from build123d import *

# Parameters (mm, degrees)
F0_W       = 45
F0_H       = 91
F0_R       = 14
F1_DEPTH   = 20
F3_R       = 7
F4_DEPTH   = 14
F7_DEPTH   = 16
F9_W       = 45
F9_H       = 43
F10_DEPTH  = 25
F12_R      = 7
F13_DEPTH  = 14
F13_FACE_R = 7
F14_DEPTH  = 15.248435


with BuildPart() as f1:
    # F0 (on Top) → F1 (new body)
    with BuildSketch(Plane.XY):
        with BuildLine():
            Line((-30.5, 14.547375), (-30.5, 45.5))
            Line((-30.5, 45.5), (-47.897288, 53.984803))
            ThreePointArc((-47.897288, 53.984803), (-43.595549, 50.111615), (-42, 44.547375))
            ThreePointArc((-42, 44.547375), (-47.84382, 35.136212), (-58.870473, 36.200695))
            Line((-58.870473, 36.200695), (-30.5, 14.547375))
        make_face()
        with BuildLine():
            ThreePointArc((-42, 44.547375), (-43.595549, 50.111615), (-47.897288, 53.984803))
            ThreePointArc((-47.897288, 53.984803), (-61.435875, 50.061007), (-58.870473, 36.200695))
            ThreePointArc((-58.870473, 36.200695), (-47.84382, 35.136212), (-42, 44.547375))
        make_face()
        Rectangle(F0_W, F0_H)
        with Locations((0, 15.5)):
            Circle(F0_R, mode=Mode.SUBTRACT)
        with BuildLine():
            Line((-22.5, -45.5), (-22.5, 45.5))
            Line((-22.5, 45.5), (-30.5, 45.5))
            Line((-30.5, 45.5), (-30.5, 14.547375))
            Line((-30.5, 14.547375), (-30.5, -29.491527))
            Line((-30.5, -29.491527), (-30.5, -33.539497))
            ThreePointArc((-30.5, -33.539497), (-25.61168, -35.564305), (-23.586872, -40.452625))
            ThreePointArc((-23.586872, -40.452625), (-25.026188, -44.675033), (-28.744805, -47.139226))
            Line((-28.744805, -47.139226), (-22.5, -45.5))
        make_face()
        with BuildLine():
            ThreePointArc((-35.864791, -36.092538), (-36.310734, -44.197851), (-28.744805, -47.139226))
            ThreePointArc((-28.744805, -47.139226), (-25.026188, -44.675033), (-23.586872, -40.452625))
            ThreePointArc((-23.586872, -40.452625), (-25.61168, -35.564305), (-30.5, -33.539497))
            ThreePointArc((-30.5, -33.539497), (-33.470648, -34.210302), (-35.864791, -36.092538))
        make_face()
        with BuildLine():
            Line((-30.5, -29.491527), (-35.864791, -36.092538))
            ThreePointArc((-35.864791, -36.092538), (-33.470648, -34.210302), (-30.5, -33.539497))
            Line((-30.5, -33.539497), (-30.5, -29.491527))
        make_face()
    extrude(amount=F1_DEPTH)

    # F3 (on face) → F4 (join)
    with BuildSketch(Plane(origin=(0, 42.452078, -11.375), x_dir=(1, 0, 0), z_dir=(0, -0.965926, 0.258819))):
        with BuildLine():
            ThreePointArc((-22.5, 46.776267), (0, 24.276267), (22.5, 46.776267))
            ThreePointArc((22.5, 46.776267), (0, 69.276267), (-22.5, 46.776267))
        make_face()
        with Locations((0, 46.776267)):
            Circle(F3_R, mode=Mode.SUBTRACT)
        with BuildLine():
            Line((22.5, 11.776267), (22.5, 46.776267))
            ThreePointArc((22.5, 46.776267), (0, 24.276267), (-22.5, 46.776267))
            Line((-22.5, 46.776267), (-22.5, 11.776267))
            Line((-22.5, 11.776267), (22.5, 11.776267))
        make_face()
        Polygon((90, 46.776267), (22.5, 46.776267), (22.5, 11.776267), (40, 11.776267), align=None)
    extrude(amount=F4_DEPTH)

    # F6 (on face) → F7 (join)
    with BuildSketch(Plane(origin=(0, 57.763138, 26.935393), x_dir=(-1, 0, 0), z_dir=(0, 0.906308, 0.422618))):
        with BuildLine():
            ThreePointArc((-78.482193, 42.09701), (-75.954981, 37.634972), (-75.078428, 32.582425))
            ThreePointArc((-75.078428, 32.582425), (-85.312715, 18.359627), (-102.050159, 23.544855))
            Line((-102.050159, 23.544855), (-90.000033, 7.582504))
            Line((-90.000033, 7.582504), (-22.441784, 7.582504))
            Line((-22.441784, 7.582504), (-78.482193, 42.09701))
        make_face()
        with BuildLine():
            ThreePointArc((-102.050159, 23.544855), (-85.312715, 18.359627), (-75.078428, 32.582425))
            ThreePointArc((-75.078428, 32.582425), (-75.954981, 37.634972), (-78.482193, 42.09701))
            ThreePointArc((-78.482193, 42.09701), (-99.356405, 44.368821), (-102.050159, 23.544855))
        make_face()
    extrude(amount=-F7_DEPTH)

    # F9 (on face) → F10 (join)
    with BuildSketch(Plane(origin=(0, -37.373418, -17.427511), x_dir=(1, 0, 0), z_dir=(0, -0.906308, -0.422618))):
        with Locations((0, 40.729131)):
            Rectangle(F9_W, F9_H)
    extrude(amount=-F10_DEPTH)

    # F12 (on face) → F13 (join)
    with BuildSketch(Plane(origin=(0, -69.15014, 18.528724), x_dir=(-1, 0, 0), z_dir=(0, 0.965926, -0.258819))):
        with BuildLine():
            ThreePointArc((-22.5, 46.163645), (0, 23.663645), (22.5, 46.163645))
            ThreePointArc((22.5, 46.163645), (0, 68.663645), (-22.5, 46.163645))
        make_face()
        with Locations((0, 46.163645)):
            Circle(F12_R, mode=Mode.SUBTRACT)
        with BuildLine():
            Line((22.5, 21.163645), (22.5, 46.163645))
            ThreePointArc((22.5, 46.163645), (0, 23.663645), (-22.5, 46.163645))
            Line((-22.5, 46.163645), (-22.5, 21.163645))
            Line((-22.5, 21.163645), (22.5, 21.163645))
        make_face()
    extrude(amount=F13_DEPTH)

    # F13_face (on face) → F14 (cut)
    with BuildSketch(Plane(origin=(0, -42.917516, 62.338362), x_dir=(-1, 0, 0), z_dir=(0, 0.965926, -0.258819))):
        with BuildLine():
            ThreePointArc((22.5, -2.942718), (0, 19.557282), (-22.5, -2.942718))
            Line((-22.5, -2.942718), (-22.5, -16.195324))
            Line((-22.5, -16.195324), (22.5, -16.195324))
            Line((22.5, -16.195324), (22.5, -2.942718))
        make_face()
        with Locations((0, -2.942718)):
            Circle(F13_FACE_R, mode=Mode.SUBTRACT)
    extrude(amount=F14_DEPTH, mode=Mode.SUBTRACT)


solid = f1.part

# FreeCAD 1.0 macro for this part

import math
import FreeCAD as App
import Part
import Sketcher
from FreeCAD import Vector
Q = App.Units.Quantity

doc = App.newDocument("Part")
body = doc.addObject("PartDesign::Body", "Body")

# Sketch on XY plane
sketch1 = body.newObject("Sketcher::SketchObject", "Sketch")
sketch1.AttachmentSupport = (doc.getObject("XY_Plane"), [""])
sketch1.MapMode = "FlatFace"
sketch1.addGeometry(Part.LineSegment(Vector(-30, 46, 0), Vector(-48, 54, 0)), False)
sketch1.addGeometry(Part.ArcOfCircle(Part.Circle(Vector(-52, 45, 0), Vector(0, 0, 1), 10), math.radians(64), math.radians(233)), False)
sketch1.addGeometry(Part.LineSegment(Vector(-59, 36, 0), Vector(-30, 15, 0)), False)
sketch1.addGeometry(Part.LineSegment(Vector(-30, 15, 0), Vector(-30, -29, 0)), False)
sketch1.addGeometry(Part.LineSegment(Vector(-30, -29, 0), Vector(-36, -36, 0)), False)
sketch1.addGeometry(Part.ArcOfCircle(Part.Circle(Vector(-31, -40, 0), Vector(0, 0, 1), 7), math.radians(141), math.radians(285)), False)
sketch1.addGeometry(Part.LineSegment(Vector(-29, -47, 0), Vector(-22, -46, 0)), False)
sketch1.addGeometry(Part.LineSegment(Vector(-22, -46, 0), Vector(22, -46, 0)), False)
sketch1.addGeometry(Part.LineSegment(Vector(22, -46, 0), Vector(22, 46, 0)), False)
sketch1.addGeometry(Part.LineSegment(Vector(22, 46, 0), Vector(-30, 46, 0)), False)
sketch1.addGeometry(Part.Circle(Vector(0, 16, 0), Vector(0, 0, 1), 14), False)
sketch1.addConstraint(Sketcher.Constraint("Tangent", 0, 2, 1, 1))
sketch1.addConstraint(Sketcher.Constraint("Tangent", 1, 2, 2, 1))
sketch1.addConstraint(Sketcher.Constraint("Coincident", 2, 2, 3, 1))
sketch1.addConstraint(Sketcher.Constraint("Coincident", 3, 2, 4, 1))
sketch1.addConstraint(Sketcher.Constraint("Tangent", 4, 2, 5, 1))
sketch1.addConstraint(Sketcher.Constraint("Tangent", 5, 2, 6, 1))
sketch1.addConstraint(Sketcher.Constraint("Coincident", 6, 2, 7, 1))
sketch1.addConstraint(Sketcher.Constraint("Coincident", 7, 2, 8, 1))
sketch1.addConstraint(Sketcher.Constraint("Coincident", 8, 2, 9, 1))
sketch1.addConstraint(Sketcher.Constraint("Coincident", 9, 2, 0, 1))
sketch1.addConstraint(Sketcher.Constraint("Vertical", 3))
sketch1.addConstraint(Sketcher.Constraint("Horizontal", 7))
sketch1.addConstraint(Sketcher.Constraint("Vertical", 8))
sketch1.addConstraint(Sketcher.Constraint("Horizontal", 9))
sketch1.addConstraint(Sketcher.Constraint("Symmetric", 6, 2, 8, 2, -1, 1))
sketch1.addConstraint(Sketcher.Constraint("PointOnObject", 10, 3, -2))
sketch1.addConstraint(Sketcher.Constraint("Vertical", 5, 3, 2, 2))
sketch1.addConstraint(Sketcher.Constraint("Vertical", 3, 2, 9, 2))
sketch1.addConstraint(Sketcher.Constraint("Diameter", 10, Q("28 mm")))
sketch1.addConstraint(Sketcher.Constraint("Radius", 1, Q("10.5 mm")))
sketch1.addConstraint(Sketcher.Constraint("DistanceX", 7, 1, 7, 2, Q("45 mm")))
sketch1.addConstraint(Sketcher.Constraint("DistanceX", 9, 2, 9, 1, Q("53 mm")))
sketch1.addConstraint(Sketcher.Constraint("DistanceY", 8, 1, 8, 2, Q("91 mm")))
sketch1.addConstraint(Sketcher.Constraint("DistanceX", 1, 3, 5, 3, Q("21.999999 mm")))
sketch1.addConstraint(Sketcher.Constraint("DistanceY", 5, 3, 1, 3, Q("85.000001 mm")))
sketch1.addConstraint(Sketcher.Constraint("DistanceY", 2, 2, 1, 3, Q("30 mm")))
sketch1.addConstraint(Sketcher.Constraint("DistanceY", 10, 3, 8, 2, Q("30 mm")))
sketch1.addConstraint(Sketcher.Constraint("Radius", 5, Q("6.913128 mm")))
sketch1.addConstraint(Sketcher.Constraint("DistanceY", 5, 3, 3, 2, Q("10.961098 mm")))
sketch1.addConstraint(Sketcher.Constraint("DistanceY", 5, 2, 5, 3, Q("6.686601 mm")))
pad1 = body.newObject("PartDesign::Pad", "Pad")
pad1.Profile = sketch1
pad1.Length = 20

# Sketch on an angled plane
sketch2 = body.newObject("Sketcher::SketchObject", "Sketch001")
sketch2.Placement = App.Placement(Vector(0, 42.452078, -11.375), App.Rotation(Vector(1, 0, 0), Vector(0, 0.25881896, 0.965925849), Vector(0, -0.965925849, 0.25881896), "ZXY"))
sketch2.addGeometry(Part.ArcOfCircle(Part.Circle(Vector(0, 47, 0), Vector(0, 0, 1), 22), math.radians(0), math.radians(180)), False)
sketch2.addGeometry(Part.LineSegment(Vector(-22, 47, 0), Vector(-22, 12, 0)), False)
sketch2.addGeometry(Part.LineSegment(Vector(-22, 12, 0), Vector(40, 12, 0)), False)
sketch2.addGeometry(Part.LineSegment(Vector(40, 12, 0), Vector(90, 47, 0)), False)
sketch2.addGeometry(Part.LineSegment(Vector(90, 47, 0), Vector(22, 47, 0)), False)
sketch2.addGeometry(Part.Circle(Vector(0, 47, 0), Vector(0, 0, 1), 7), False)
sketch2.addConstraint(Sketcher.Constraint("Tangent", 0, 2, 1, 1))
sketch2.addConstraint(Sketcher.Constraint("Coincident", 1, 2, 2, 1))
sketch2.addConstraint(Sketcher.Constraint("Coincident", 2, 2, 3, 1))
sketch2.addConstraint(Sketcher.Constraint("Coincident", 3, 2, 4, 1))
sketch2.addConstraint(Sketcher.Constraint("Coincident", 4, 2, 0, 1))
sketch2.addConstraint(Sketcher.Constraint("Vertical", 1))
sketch2.addConstraint(Sketcher.Constraint("Horizontal", 2))
sketch2.addConstraint(Sketcher.Constraint("Horizontal", 4))
sketch2.addConstraint(Sketcher.Constraint("Coincident", 5, 3, 0, 3))
sketch2.addConstraint(Sketcher.Constraint("Symmetric", 0, 2, 4, 2, -2))
sketch2.addConstraint(Sketcher.Constraint("Diameter", 5, Q("14 mm")))
sketch2.addConstraint(Sketcher.Constraint("Radius", 0, Q("22.5 mm")))
sketch2.addConstraint(Sketcher.Constraint("DistanceY", 1, 2, 1, 1, Q("35 mm")))
sketch2.addConstraint(Sketcher.Constraint("DistanceX", 2, 1, 2, 2, Q("62.5 mm")))
sketch2.addConstraint(Sketcher.Constraint("DistanceX", 4, 2, 4, 1, Q("67.5 mm")))
sketch2.addConstraint(Sketcher.Constraint("DistanceY", -1, 1, 0, 3, Q("46.776267 mm")))
pad2 = body.newObject("PartDesign::Pad", "Pad001")
pad2.Profile = sketch2
pad2.Length = 14

# Sketch on an angled plane
sketch3 = body.newObject("Sketcher::SketchObject", "Sketch002")
sketch3.Placement = App.Placement(Vector(0, 57.763138, 26.935393), App.Rotation(Vector(-1, 0, 0), Vector(0, -0.422617965, 0.906307925), Vector(0, 0.906307925, 0.422617965), "ZXY"))
sketch3.addGeometry(Part.LineSegment(Vector(-102, 24, 0), Vector(-90, 8, 0)), False)
sketch3.addGeometry(Part.LineSegment(Vector(-90, 8, 0), Vector(-22, 8, 0)), False)
sketch3.addGeometry(Part.LineSegment(Vector(-22, 8, 0), Vector(-78, 42, 0)), False)
sketch3.addGeometry(Part.ArcOfCircle(Part.Circle(Vector(-90, 33, 0), Vector(0, 0, 1), 15), math.radians(39), math.radians(217)), False)
sketch3.addConstraint(Sketcher.Constraint("Coincident", 0, 2, 1, 1))
sketch3.addConstraint(Sketcher.Constraint("Coincident", 1, 2, 2, 1))
sketch3.addConstraint(Sketcher.Constraint("Coincident", 2, 2, 3, 1))
sketch3.addConstraint(Sketcher.Constraint("Tangent", 3, 2, 0, 1))
sketch3.addConstraint(Sketcher.Constraint("Horizontal", 1))
sketch3.addConstraint(Sketcher.Constraint("Radius", 3, Q("15 mm")))
sketch3.addConstraint(Sketcher.Constraint("DistanceX", 1, 1, 1, 2, Q("67.558249 mm")))
sketch3.addConstraint(Sketcher.Constraint("Distance", 2, Q("65.816248 mm")))
sketch3.addConstraint(Sketcher.Constraint("DistanceY", -1, 1, 2, 2, Q("42.09701 mm")))
sketch3.addConstraint(Sketcher.Constraint("DistanceX", 3, 2, -1, 1, Q("102.050159 mm")))
sketch3.addConstraint(Sketcher.Constraint("DistanceY", 0, 2, 3, 3, Q("24.99992 mm")))
sketch3.addConstraint(Sketcher.Constraint("DistanceX", 0, 2, 2, 2, Q("11.51784 mm")))
pad3 = body.newObject("PartDesign::Pad", "Pad002")
pad3.Profile = sketch3
pad3.Length = 16
pad3.Reversed = True

# Sketch on an angled plane
sketch4 = body.newObject("Sketcher::SketchObject", "Sketch003")
sketch4.Placement = App.Placement(Vector(0, -37.373418, -17.427511), App.Rotation(Vector(1, 0, 0), Vector(0, -0.422617965, 0.906307925), Vector(0, -0.906307925, -0.422617965), "ZXY"))
sketch4.addGeometry(Part.LineSegment(Vector(-22, 62, 0), Vector(-22, 19, 0)), False)
sketch4.addGeometry(Part.LineSegment(Vector(-22, 19, 0), Vector(22, 19, 0)), False)
sketch4.addGeometry(Part.LineSegment(Vector(22, 19, 0), Vector(22, 62, 0)), False)
sketch4.addGeometry(Part.LineSegment(Vector(22, 62, 0), Vector(-22, 62, 0)), False)
sketch4.addConstraint(Sketcher.Constraint("Coincident", 0, 2, 1, 1))
sketch4.addConstraint(Sketcher.Constraint("Coincident", 1, 2, 2, 1))
sketch4.addConstraint(Sketcher.Constraint("Coincident", 2, 2, 3, 1))
sketch4.addConstraint(Sketcher.Constraint("Coincident", 3, 2, 0, 1))
sketch4.addConstraint(Sketcher.Constraint("Vertical", 0))
sketch4.addConstraint(Sketcher.Constraint("Horizontal", 1))
sketch4.addConstraint(Sketcher.Constraint("Vertical", 2))
sketch4.addConstraint(Sketcher.Constraint("Horizontal", 3))
sketch4.addConstraint(Sketcher.Constraint("DistanceX", 1, 1, 1, 2, Q("45 mm")))
sketch4.addConstraint(Sketcher.Constraint("DistanceY", 0, 2, 0, 1, Q("43 mm")))
sketch4.addConstraint(Sketcher.Constraint("DistanceX", 0, 2, -1, 1, Q("22.5 mm")))
sketch4.addConstraint(Sketcher.Constraint("DistanceY", -1, 1, 0, 2, Q("19.229131 mm")))
pad4 = body.newObject("PartDesign::Pad", "Pad003")
pad4.Profile = sketch4
pad4.Length = 25
pad4.Reversed = True

# Sketch on an angled plane
sketch5 = body.newObject("Sketcher::SketchObject", "Sketch004")
sketch5.Placement = App.Placement(Vector(0, -69.15014, 18.528724), App.Rotation(Vector(-1, 0, 0), Vector(0, 0.25881896, 0.965925849), Vector(0, 0.965925849, -0.25881896), "ZXY"))
sketch5.addGeometry(Part.ArcOfCircle(Part.Circle(Vector(0, 46, 0), Vector(0, 0, 1), 22), math.radians(0), math.radians(180)), False)
sketch5.addGeometry(Part.LineSegment(Vector(-22, 46, 0), Vector(-22, 21, 0)), False)
sketch5.addGeometry(Part.LineSegment(Vector(-22, 21, 0), Vector(22, 21, 0)), False)
sketch5.addGeometry(Part.LineSegment(Vector(22, 21, 0), Vector(22, 46, 0)), False)
sketch5.addGeometry(Part.Circle(Vector(0, 46, 0), Vector(0, 0, 1), 7), False)
sketch5.addConstraint(Sketcher.Constraint("Tangent", 0, 2, 1, 1))
sketch5.addConstraint(Sketcher.Constraint("Coincident", 1, 2, 2, 1))
sketch5.addConstraint(Sketcher.Constraint("Coincident", 2, 2, 3, 1))
sketch5.addConstraint(Sketcher.Constraint("Tangent", 3, 2, 0, 1))
sketch5.addConstraint(Sketcher.Constraint("Vertical", 1))
sketch5.addConstraint(Sketcher.Constraint("Horizontal", 2))
sketch5.addConstraint(Sketcher.Constraint("Vertical", 3))
sketch5.addConstraint(Sketcher.Constraint("Coincident", 4, 3, 0, 3))
sketch5.addConstraint(Sketcher.Constraint("PointOnObject", 0, 3, -2))
sketch5.addConstraint(Sketcher.Constraint("Diameter", 4, Q("14 mm")))
sketch5.addConstraint(Sketcher.Constraint("Radius", 0, Q("22.5 mm")))
sketch5.addConstraint(Sketcher.Constraint("DistanceY", 1, 2, 1, 1, Q("25 mm")))
sketch5.addConstraint(Sketcher.Constraint("DistanceY", -1, 1, 0, 3, Q("46.163645 mm")))
pad5 = body.newObject("PartDesign::Pad", "Pad004")
pad5.Profile = sketch5
pad5.Length = 14

# Sketch on an angled plane
sketch6 = body.newObject("Sketcher::SketchObject", "Sketch005")
sketch6.Placement = App.Placement(Vector(0, -42.917516, 62.338362), App.Rotation(Vector(-1, 0, 0), Vector(0, 0.25881896, 0.965925849), Vector(0, 0.965925849, -0.25881896), "ZXY"))
sketch6.addGeometry(Part.ArcOfCircle(Part.Circle(Vector(0, -3, 0), Vector(0, 0, 1), 22), math.radians(0), math.radians(180)), False)
sketch6.addGeometry(Part.LineSegment(Vector(-22, -3, 0), Vector(-22, -16, 0)), False)
sketch6.addGeometry(Part.LineSegment(Vector(-22, -16, 0), Vector(22, -16, 0)), False)
sketch6.addGeometry(Part.LineSegment(Vector(22, -16, 0), Vector(22, -3, 0)), False)
sketch6.addGeometry(Part.Circle(Vector(0, -3, 0), Vector(0, 0, 1), 7), False)
sketch6.addConstraint(Sketcher.Constraint("Tangent", 0, 2, 1, 1))
sketch6.addConstraint(Sketcher.Constraint("Coincident", 1, 2, 2, 1))
sketch6.addConstraint(Sketcher.Constraint("Coincident", 2, 2, 3, 1))
sketch6.addConstraint(Sketcher.Constraint("Tangent", 3, 2, 0, 1))
sketch6.addConstraint(Sketcher.Constraint("Vertical", 1))
sketch6.addConstraint(Sketcher.Constraint("Horizontal", 2))
sketch6.addConstraint(Sketcher.Constraint("Vertical", 3))
sketch6.addConstraint(Sketcher.Constraint("Coincident", 4, 3, 0, 3))
sketch6.addConstraint(Sketcher.Constraint("PointOnObject", 0, 3, -2))
sketch6.addConstraint(Sketcher.Constraint("Diameter", 4, Q("14 mm")))
sketch6.addConstraint(Sketcher.Constraint("Radius", 0, Q("22.5 mm")))
sketch6.addConstraint(Sketcher.Constraint("DistanceY", 1, 2, 1, 1, Q("13.252606 mm")))
sketch6.addConstraint(Sketcher.Constraint("DistanceY", 0, 3, -1, 1, Q("2.942718 mm")))
pocket1 = body.newObject("PartDesign::Pocket", "Pocket")
pocket1.Profile = sketch6
pocket1.Length = 15.248435
pocket1.Reversed = True

doc.recompute()
